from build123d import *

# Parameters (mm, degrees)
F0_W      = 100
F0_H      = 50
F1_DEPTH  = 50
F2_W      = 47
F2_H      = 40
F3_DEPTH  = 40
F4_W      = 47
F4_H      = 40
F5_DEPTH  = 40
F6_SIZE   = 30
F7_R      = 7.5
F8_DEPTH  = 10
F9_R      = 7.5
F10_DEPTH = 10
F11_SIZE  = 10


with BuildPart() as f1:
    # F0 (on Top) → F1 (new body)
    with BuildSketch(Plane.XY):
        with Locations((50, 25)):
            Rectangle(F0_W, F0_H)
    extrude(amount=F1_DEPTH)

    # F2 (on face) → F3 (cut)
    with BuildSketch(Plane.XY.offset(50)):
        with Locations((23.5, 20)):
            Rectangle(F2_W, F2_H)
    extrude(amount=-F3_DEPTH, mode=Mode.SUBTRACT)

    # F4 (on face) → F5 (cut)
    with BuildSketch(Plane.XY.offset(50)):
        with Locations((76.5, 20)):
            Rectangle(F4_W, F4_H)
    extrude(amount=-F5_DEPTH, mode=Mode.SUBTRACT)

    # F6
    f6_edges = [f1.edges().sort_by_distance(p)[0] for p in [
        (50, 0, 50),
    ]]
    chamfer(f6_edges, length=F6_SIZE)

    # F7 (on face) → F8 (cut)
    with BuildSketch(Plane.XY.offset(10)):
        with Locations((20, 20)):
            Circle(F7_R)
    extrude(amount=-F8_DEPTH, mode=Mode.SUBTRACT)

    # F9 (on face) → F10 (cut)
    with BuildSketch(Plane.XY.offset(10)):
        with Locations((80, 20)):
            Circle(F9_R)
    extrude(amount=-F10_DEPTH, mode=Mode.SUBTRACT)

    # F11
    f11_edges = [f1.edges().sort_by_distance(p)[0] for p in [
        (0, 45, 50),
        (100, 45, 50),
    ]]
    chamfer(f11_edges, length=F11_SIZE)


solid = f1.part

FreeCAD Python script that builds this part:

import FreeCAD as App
import Part
import Sketcher

V = App.Vector
Q = App.Units.Quantity


def edges_at(feature, points):
    """Names of the edges that pass closest to the given points."""
    edges = feature.Shape.Edges
    near = lambda p: min(range(len(edges)), key=lambda i: edges[i].distToShape(Part.Vertex(*p))[0])
    return sorted({f"Edge{near(p) + 1}" for p in points})

doc = App.newDocument("Part")
body = doc.addObject("PartDesign::Body", "Body")

sketch1 = body.newObject("Sketcher::SketchObject", "Sketch")
sketch1.AttachmentSupport = (doc.getObject("XY_Plane"), [""])
sketch1.MapMode = "FlatFace"
sketch1.addGeometry([
    Part.LineSegment(V(0, 50, 0), V(0, 0, 0)),
    Part.LineSegment(V(0, 0, 0), V(100, 0, 0)),
    Part.LineSegment(V(100, 0, 0), V(100, 50, 0)),
    Part.LineSegment(V(100, 50, 0), V(0, 50, 0)),
], False)
sketch1.addConstraint([
    Sketcher.Constraint("Coincident", 0, 2, 1, 1),
    Sketcher.Constraint("Coincident", 1, 2, 2, 1),
    Sketcher.Constraint("Coincident", 2, 2, 3, 1),
    Sketcher.Constraint("Coincident", 3, 2, 0, 1),
    Sketcher.Constraint("Vertical", 0),
    Sketcher.Constraint("Horizontal", 1),
    Sketcher.Constraint("Vertical", 2),
    Sketcher.Constraint("Horizontal", 3),
    Sketcher.Constraint("Coincident", 0, 2, -1, 1),
    Sketcher.Constraint("DistanceX", 1, 1, 1, 2, Q("100 mm")),
    Sketcher.Constraint("DistanceY", 0, 2, 0, 1, Q("50 mm")),
])
pad1 = body.newObject("PartDesign::Pad", "Pad")
pad1.Profile = sketch1
pad1.Length = 50

sketch2 = body.newObject("Sketcher::SketchObject", "Sketch001")
sketch2.AttachmentSupport = (doc.getObject("XY_Plane"), [""])
sketch2.MapMode = "FlatFace"
sketch2.AttachmentOffset = App.Placement(V(0, 0, 50), App.Rotation())
sketch2.addGeometry([
    Part.LineSegment(V(0, 40, 0), V(0, 0, 0)),
    Part.LineSegment(V(0, 0, 0), V(47, 0, 0)),
    Part.LineSegment(V(47, 0, 0), V(47, 40, 0)),
    Part.LineSegment(V(47, 40, 0), V(0, 40, 0)),
], False)
sketch2.addConstraint([
    Sketcher.Constraint("Coincident", 0, 2, 1, 1),
    Sketcher.Constraint("Coincident", 1, 2, 2, 1),
    Sketcher.Constraint("Coincident", 2, 2, 3, 1),
    Sketcher.Constraint("Coincident", 3, 2, 0, 1),
    Sketcher.Constraint("Vertical", 0),
    Sketcher.Constraint("Horizontal", 1),
    Sketcher.Constraint("Vertical", 2),
    Sketcher.Constraint("Horizontal", 3),
    Sketcher.Constraint("Coincident", 0, 2, -1, 1),
    Sketcher.Constraint("DistanceX", 1, 1, 1, 2, Q("47 mm")),
    Sketcher.Constraint("DistanceY", 0, 2, 0, 1, Q("40 mm")),
])
pocket1 = body.newObject("PartDesign::Pocket", "Pocket")
pocket1.Profile = sketch2
pocket1.Length = 40

sketch3 = body.newObject("Sketcher::SketchObject", "Sketch002")
sketch3.AttachmentSupport = (doc.getObject("XY_Plane"), [""])
sketch3.MapMode = "FlatFace"
sketch3.AttachmentOffset = App.Placement(V(0, 0, 50), App.Rotation())
sketch3.addGeometry([
    Part.LineSegment(V(53, 40, 0), V(53, 0, 0)),
    Part.LineSegment(V(53, 0, 0), V(100, 0, 0)),
    Part.LineSegment(V(100, 0, 0), V(100, 40, 0)),
    Part.LineSegment(V(100, 40, 0), V(53, 40, 0)),
], False)
sketch3.addConstraint([
    Sketcher.Constraint("Coincident", 0, 2, 1, 1),
    Sketcher.Constraint("Coincident", 1, 2, 2, 1),
    Sketcher.Constraint("Coincident", 2, 2, 3, 1),
    Sketcher.Constraint("Coincident", 3, 2, 0, 1),
    Sketcher.Constraint("Vertical", 0),
    Sketcher.Constraint("Horizontal", 1),
    Sketcher.Constraint("Vertical", 2),
    Sketcher.Constraint("Horizontal", 3),
    Sketcher.Constraint("PointOnObject", 0, 2, -1),
    Sketcher.Constraint("DistanceX", 1, 1, 1, 2, Q("47 mm")),
    Sketcher.Constraint("DistanceY", 0, 2, 0, 1, Q("40 mm")),
    Sketcher.Constraint("DistanceX", -1, 1, 0, 2, Q("53 mm")),
])
pocket2 = body.newObject("PartDesign::Pocket", "Pocket001")
pocket2.Profile = sketch3
pocket2.Length = 40
doc.recompute()

chamfer = body.newObject("PartDesign::Chamfer", "Chamfer")
chamfer.Base = (pocket2, edges_at(pocket2, [(50, 0, 50)]))
chamfer.Size = 30

sketch4 = body.newObject("Sketcher::SketchObject", "Sketch003")
sketch4.AttachmentSupport = (doc.getObject("XY_Plane"), [""])
sketch4.MapMode = "FlatFace"
sketch4.AttachmentOffset = App.Placement(V(0, 0, 10), App.Rotation())
sketch4.addGeometry(Part.Circle(V(20, 20, 0), V(0, 0, 1), 8), False)
sketch4.addConstraint([
    Sketcher.Constraint("Diameter", 0, Q("15 mm")),
    Sketcher.Constraint("DistanceX", -1, 1, 0, 3, Q("20 mm")),
    Sketcher.Constraint("DistanceY", -1, 1, 0, 3, Q("20 mm")),
])
pocket3 = body.newObject("PartDesign::Pocket", "Pocket002")
pocket3.Profile = sketch4
pocket3.Length = 10

sketch5 = body.newObject("Sketcher::SketchObject", "Sketch004")
sketch5.AttachmentSupport = (doc.getObject("XY_Plane"), [""])
sketch5.MapMode = "FlatFace"
sketch5.AttachmentOffset = App.Placement(V(0, 0, 10), App.Rotation())
sketch5.addGeometry(Part.Circle(V(80, 20, 0), V(0, 0, 1), 8), False)
sketch5.addConstraint([
    Sketcher.Constraint("Diameter", 0, Q("15 mm")),
    Sketcher.Constraint("DistanceX", -1, 1, 0, 3, Q("80 mm")),
    Sketcher.Constraint("DistanceY", -1, 1, 0, 3, Q("20 mm")),
])
pocket4 = body.newObject("PartDesign::Pocket", "Pocket003")
pocket4.Profile = sketch5
pocket4.Length = 10
doc.recompute()

chamfer2 = body.newObject("PartDesign::Chamfer", "Chamfer001")
chamfer2.Base = (pocket4, edges_at(pocket4, [(0, 45, 50), (100, 45, 50)]))
chamfer2.Size = 10

doc.recompute()
